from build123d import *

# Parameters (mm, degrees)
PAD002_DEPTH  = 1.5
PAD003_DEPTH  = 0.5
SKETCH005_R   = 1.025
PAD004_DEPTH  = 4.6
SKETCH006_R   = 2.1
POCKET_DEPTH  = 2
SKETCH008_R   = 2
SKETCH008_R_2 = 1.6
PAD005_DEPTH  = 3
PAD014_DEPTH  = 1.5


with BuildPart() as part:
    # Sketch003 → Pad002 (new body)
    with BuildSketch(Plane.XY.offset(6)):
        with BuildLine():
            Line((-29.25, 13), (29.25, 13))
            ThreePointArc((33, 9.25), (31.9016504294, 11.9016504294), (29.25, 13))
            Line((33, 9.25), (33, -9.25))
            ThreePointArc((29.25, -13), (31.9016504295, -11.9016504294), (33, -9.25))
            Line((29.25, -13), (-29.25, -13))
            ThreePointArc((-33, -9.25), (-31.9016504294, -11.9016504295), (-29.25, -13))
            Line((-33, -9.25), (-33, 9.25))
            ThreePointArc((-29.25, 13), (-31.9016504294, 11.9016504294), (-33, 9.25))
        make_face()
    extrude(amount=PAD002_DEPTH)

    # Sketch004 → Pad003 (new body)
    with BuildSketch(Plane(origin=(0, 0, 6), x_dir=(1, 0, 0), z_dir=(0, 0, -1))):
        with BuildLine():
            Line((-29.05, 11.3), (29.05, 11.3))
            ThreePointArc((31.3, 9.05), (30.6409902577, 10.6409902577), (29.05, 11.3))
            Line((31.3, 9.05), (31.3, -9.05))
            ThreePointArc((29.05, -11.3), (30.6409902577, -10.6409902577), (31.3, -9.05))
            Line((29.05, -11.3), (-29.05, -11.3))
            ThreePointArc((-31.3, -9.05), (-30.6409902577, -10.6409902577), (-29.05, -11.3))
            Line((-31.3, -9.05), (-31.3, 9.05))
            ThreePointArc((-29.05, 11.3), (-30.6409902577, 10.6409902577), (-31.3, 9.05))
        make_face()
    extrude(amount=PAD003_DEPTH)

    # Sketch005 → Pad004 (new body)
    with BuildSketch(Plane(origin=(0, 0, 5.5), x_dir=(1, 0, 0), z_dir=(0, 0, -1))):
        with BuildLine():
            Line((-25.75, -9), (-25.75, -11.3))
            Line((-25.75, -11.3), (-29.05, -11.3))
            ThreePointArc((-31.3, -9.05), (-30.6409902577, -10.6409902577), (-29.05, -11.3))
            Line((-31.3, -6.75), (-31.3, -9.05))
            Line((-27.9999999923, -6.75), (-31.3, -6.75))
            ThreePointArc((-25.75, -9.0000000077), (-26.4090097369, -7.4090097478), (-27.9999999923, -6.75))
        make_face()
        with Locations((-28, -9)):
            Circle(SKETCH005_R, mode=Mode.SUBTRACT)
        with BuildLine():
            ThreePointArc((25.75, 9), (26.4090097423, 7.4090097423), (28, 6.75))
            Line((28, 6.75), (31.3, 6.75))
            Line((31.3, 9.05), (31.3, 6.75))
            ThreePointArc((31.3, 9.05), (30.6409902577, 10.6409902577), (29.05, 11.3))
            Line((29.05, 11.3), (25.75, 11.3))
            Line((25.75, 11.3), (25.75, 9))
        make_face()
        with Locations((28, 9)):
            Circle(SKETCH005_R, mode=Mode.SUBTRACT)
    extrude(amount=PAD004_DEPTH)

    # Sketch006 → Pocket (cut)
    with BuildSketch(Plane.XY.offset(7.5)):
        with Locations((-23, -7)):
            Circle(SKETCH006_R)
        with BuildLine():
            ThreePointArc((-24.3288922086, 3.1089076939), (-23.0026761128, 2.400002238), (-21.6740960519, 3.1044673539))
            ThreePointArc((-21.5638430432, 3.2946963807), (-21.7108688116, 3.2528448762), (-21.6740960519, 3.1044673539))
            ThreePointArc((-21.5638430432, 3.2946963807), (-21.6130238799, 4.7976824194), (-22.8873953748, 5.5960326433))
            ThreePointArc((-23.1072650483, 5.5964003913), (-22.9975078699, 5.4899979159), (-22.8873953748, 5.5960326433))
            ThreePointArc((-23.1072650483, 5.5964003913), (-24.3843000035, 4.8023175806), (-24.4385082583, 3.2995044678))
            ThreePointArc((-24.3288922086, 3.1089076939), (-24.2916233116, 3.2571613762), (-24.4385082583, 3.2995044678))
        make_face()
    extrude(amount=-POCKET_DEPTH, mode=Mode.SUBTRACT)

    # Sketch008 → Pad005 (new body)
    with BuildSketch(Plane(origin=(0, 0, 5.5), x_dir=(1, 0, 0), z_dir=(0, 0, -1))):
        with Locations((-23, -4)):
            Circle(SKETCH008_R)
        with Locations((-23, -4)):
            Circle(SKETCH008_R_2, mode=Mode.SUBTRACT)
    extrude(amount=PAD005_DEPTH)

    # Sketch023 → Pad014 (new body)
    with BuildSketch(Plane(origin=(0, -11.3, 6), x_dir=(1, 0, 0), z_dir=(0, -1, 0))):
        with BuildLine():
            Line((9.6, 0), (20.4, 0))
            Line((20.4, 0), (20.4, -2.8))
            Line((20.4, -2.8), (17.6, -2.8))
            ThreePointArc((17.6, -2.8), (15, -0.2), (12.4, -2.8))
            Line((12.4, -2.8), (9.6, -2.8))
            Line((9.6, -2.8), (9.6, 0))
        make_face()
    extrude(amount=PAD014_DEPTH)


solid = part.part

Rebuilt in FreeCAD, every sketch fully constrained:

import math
import FreeCAD as App
import Part
import Sketcher
Q = App.Units.Quantity

doc = App.newDocument("Part")
body = doc.addObject("PartDesign::Body", "Body")

sketch1 = body.newObject("Sketcher::SketchObject", "Sketch")
sketch1.AttachmentSupport = (doc.getObject("XY_Plane"), [""])
sketch1.MapMode = "FlatFace"
sketch1.AttachmentOffset = App.Placement(App.Vector(0, 0, 6), App.Rotation())
sketch1.addGeometry(Part.LineSegment(App.Vector(29.25, 13, 0), App.Vector(-29.25, 13, 0)), False)
sketch1.addGeometry(Part.ArcOfCircle(Part.Circle(App.Vector(-29.25, 9.25, 0), App.Vector(0, 0, 1), 3.75), math.radians(90), math.radians(180)), False)
sketch1.addGeometry(Part.LineSegment(App.Vector(-33, 9.25, 0), App.Vector(-33, -9.25, 0)), False)
sketch1.addGeometry(Part.ArcOfCircle(Part.Circle(App.Vector(-29.25, -9.25, 0), App.Vector(0, 0, 1), 3.75), math.radians(180), math.radians(270)), False)
sketch1.addGeometry(Part.LineSegment(App.Vector(-29.25, -13, 0), App.Vector(29.25, -13, 0)), False)
sketch1.addGeometry(Part.ArcOfCircle(Part.Circle(App.Vector(29.25, -9.25, 0), App.Vector(0, 0, 1), 3.75), math.radians(-90), math.radians(0)), False)
sketch1.addGeometry(Part.LineSegment(App.Vector(33, -9.25, 0), App.Vector(33, 9.25, 0)), False)
sketch1.addGeometry(Part.ArcOfCircle(Part.Circle(App.Vector(29.25, 9.25, 0), App.Vector(0, 0, 1), 3.75), math.radians(0), math.radians(90)), False)
sketch1.addConstraint(Sketcher.Constraint("Tangent", 0, 2, 1, 1))
sketch1.addConstraint(Sketcher.Constraint("Tangent", 1, 2, 2, 1))
sketch1.addConstraint(Sketcher.Constraint("Tangent", 2, 2, 3, 1))
sketch1.addConstraint(Sketcher.Constraint("Tangent", 3, 2, 4, 1))
sketch1.addConstraint(Sketcher.Constraint("Tangent", 4, 2, 5, 1))
sketch1.addConstraint(Sketcher.Constraint("Tangent", 5, 2, 6, 1))
sketch1.addConstraint(Sketcher.Constraint("Tangent", 6, 2, 7, 1))
sketch1.addConstraint(Sketcher.Constraint("Tangent", 7, 2, 0, 1))
sketch1.addConstraint(Sketcher.Constraint("Horizontal", 0))
sketch1.addConstraint(Sketcher.Constraint("Vertical", 2))
sketch1.addConstraint(Sketcher.Constraint("Horizontal", 4))
sketch1.addConstraint(Sketcher.Constraint("Vertical", 6))
sketch1.addConstraint(Sketcher.Constraint("Equal", 1, 3))
sketch1.addConstraint(Sketcher.Constraint("Equal", 3, 5))
sketch1.addConstraint(Sketcher.Constraint("Equal", 5, 7))
sketch1.addConstraint(Sketcher.Constraint("Symmetric", 1, 3, 5, 3, -1, 1))
sketch1.addConstraint(Sketcher.Constraint("Radius", 1, Q("3.75 mm")))
sketch1.addConstraint(Sketcher.Constraint("DistanceX", 0, 2, 0, 1, Q("58.5 mm")))
sketch1.addConstraint(Sketcher.Constraint("DistanceY", 2, 2, 2, 1, Q("18.5 mm")))
pad1 = body.newObject("PartDesign::Pad", "Pad")
pad1.Profile = sketch1
pad1.Length = 1.5

sketch2 = body.newObject("Sketcher::SketchObject", "Sketch001")
sketch2.AttachmentSupport = (doc.getObject("XY_Plane"), [""])
sketch2.MapMode = "FlatFace"
sketch2.AttachmentOffset = App.Placement(App.Vector(0, 0, 6), App.Rotation())
sketch2.addGeometry(Part.LineSegment(App.Vector(29.05, -11.3, 0), App.Vector(-29.05, -11.3, 0)), False)
sketch2.addGeometry(Part.ArcOfCircle(Part.Circle(App.Vector(-29.05, -9.05, 0), App.Vector(0, 0, 1), 2.25), math.radians(180), math.radians(270)), False)
sketch2.addGeometry(Part.LineSegment(App.Vector(-31.3, -9.05, 0), App.Vector(-31.3, 9.05, 0)), False)
sketch2.addGeometry(Part.ArcOfCircle(Part.Circle(App.Vector(-29.05, 9.05, 0), App.Vector(0, 0, 1), 2.25), math.radians(90), math.radians(180)), False)
sketch2.addGeometry(Part.LineSegment(App.Vector(-29.05, 11.3, 0), App.Vector(29.05, 11.3, 0)), False)
sketch2.addGeometry(Part.ArcOfCircle(Part.Circle(App.Vector(29.05, 9.05, 0), App.Vector(0, 0, 1), 2.25), math.radians(0), math.radians(90)), False)
sketch2.addGeometry(Part.LineSegment(App.Vector(31.3, 9.05, 0), App.Vector(31.3, -9.05, 0)), False)
sketch2.addGeometry(Part.ArcOfCircle(Part.Circle(App.Vector(29.05, -9.05, 0), App.Vector(0, 0, 1), 2.25), math.radians(-90), math.radians(0)), False)
sketch2.addConstraint(Sketcher.Constraint("Tangent", 0, 2, 1, 2))
sketch2.addConstraint(Sketcher.Constraint("Tangent", 1, 1, 2, 1))
sketch2.addConstraint(Sketcher.Constraint("Tangent", 2, 2, 3, 2))
sketch2.addConstraint(Sketcher.Constraint("Tangent", 3, 1, 4, 1))
sketch2.addConstraint(Sketcher.Constraint("Tangent", 4, 2, 5, 2))
sketch2.addConstraint(Sketcher.Constraint("Tangent", 5, 1, 6, 1))
sketch2.addConstraint(Sketcher.Constraint("Tangent", 6, 2, 7, 2))
sketch2.addConstraint(Sketcher.Constraint("Tangent", 7, 1, 0, 1))
sketch2.addConstraint(Sketcher.Constraint("Horizontal", 0))
sketch2.addConstraint(Sketcher.Constraint("Vertical", 2))
sketch2.addConstraint(Sketcher.Constraint("Horizontal", 4))
sketch2.addConstraint(Sketcher.Constraint("Vertical", 6))
sketch2.addConstraint(Sketcher.Constraint("Equal", 1, 3))
sketch2.addConstraint(Sketcher.Constraint("Equal", 3, 5))
sketch2.addConstraint(Sketcher.Constraint("Equal", 5, 7))
sketch2.addConstraint(Sketcher.Constraint("Symmetric", 1, 3, 5, 3, -1, 1))
sketch2.addConstraint(Sketcher.Constraint("Radius", 1, Q("2.25 mm")))
sketch2.addConstraint(Sketcher.Constraint("DistanceX", 0, 2, 0, 1, Q("58.1 mm")))
sketch2.addConstraint(Sketcher.Constraint("DistanceY", 2, 1, 2, 2, Q("18.1 mm")))
pad2 = body.newObject("PartDesign::Pad", "Pad001")
pad2.Profile = sketch2
pad2.Length = 0.5
pad2.Reversed = True

sketch3 = body.newObject("Sketcher::SketchObject", "Sketch002")
sketch3.AttachmentSupport = (doc.getObject("XY_Plane"), [""])
sketch3.MapMode = "FlatFace"
sketch3.AttachmentOffset = App.Placement(App.Vector(0, 0, 5.5), App.Rotation())
sketch3.addGeometry(Part.LineSegment(App.Vector(-25.75, 11.3, 0), App.Vector(-25.75, 9, 0)), False)
sketch3.addGeometry(Part.ArcOfCircle(Part.Circle(App.Vector(-28, 9, 0), App.Vector(0, 0, 1), 2.25), math.radians(-90), math.radians(0)), False)
sketch3.addGeometry(Part.LineSegment(App.Vector(-28, 6.75, 0), App.Vector(-31.3, 6.75, 0)), False)
sketch3.addGeometry(Part.LineSegment(App.Vector(-31.3, 6.75, 0), App.Vector(-31.3, 9.05, 0)), False)
sketch3.addGeometry(Part.ArcOfCircle(Part.Circle(App.Vector(-29.05, 9.05, 0), App.Vector(0, 0, 1), 2.25), math.radians(90), math.radians(180)), False)
sketch3.addGeometry(Part.LineSegment(App.Vector(-29.05, 11.3, 0), App.Vector(-25.75, 11.3, 0)), False)
sketch3.addGeometry(Part.Circle(App.Vector(-28, 9, 0), App.Vector(0, 0, 1), 1.025), False)
sketch3.addGeometry(Part.ArcOfCircle(Part.Circle(App.Vector(28, -9, 0), App.Vector(0, 0, 1), 2.25), math.radians(90), math.radians(180)), False)
sketch3.addGeometry(Part.LineSegment(App.Vector(28, -6.75, 0), App.Vector(31.3, -6.75, 0)), False)
sketch3.addGeometry(Part.LineSegment(App.Vector(31.3, -6.75, 0), App.Vector(31.3, -9.05, 0)), False)
sketch3.addGeometry(Part.ArcOfCircle(Part.Circle(App.Vector(29.05, -9.05, 0), App.Vector(0, 0, 1), 2.25), math.radians(-90), math.radians(0)), False)
sketch3.addGeometry(Part.LineSegment(App.Vector(29.05, -11.3, 0), App.Vector(25.75, -11.3, 0)), False)
sketch3.addGeometry(Part.LineSegment(App.Vector(25.75, -11.3, 0), App.Vector(25.75, -9, 0)), False)
sketch3.addGeometry(Part.Circle(App.Vector(28, -9, 0), App.Vector(0, 0, 1), 1.025), False)
sketch3.addConstraint(Sketcher.Constraint("Tangent", 0, 2, 1, 2))
sketch3.addConstraint(Sketcher.Constraint("Tangent", 1, 1, 2, 1))
sketch3.addConstraint(Sketcher.Constraint("Coincident", 2, 2, 3, 1))
sketch3.addConstraint(Sketcher.Constraint("Tangent", 3, 2, 4, 2))
sketch3.addConstraint(Sketcher.Constraint("Tangent", 4, 1, 5, 1))
sketch3.addConstraint(Sketcher.Constraint("Coincident", 5, 2, 0, 1))
sketch3.addConstraint(Sketcher.Constraint("Tangent", 7, 1, 8, 1))
sketch3.addConstraint(Sketcher.Constraint("Coincident", 8, 2, 9, 1))
sketch3.addConstraint(Sketcher.Constraint("Tangent", 9, 2, 10, 2))
sketch3.addConstraint(Sketcher.Constraint("Tangent", 10, 1, 11, 1))
sketch3.addConstraint(Sketcher.Constraint("Coincident", 11, 2, 12, 1))
sketch3.addConstraint(Sketcher.Constraint("Tangent", 12, 2, 7, 2))
sketch3.addConstraint(Sketcher.Constraint("Vertical", 0))
sketch3.addConstraint(Sketcher.Constraint("Horizontal", 2))
sketch3.addConstraint(Sketcher.Constraint("Vertical", 3))
sketch3.addConstraint(Sketcher.Constraint("Horizontal", 5))
sketch3.addConstraint(Sketcher.Constraint("Horizontal", 8))
sketch3.addConstraint(Sketcher.Constraint("Vertical", 9))
sketch3.addConstraint(Sketcher.Constraint("Horizontal", 11))
sketch3.addConstraint(Sketcher.Constraint("Vertical", 12))
sketch3.addConstraint(Sketcher.Constraint("Coincident", 6, 3, 1, 3))
sketch3.addConstraint(Sketcher.Constraint("Coincident", 13, 3, 7, 3))
sketch3.addConstraint(Sketcher.Constraint("Equal", 1, 4))
sketch3.addConstraint(Sketcher.Constraint("Equal", 4, 7))
sketch3.addConstraint(Sketcher.Constraint("Equal", 7, 10))
sketch3.addConstraint(Sketcher.Constraint("Equal", 6, 13))
sketch3.addConstraint(Sketcher.Constraint("Symmetric", 1, 3, 7, 3, -1, 1))
sketch3.addConstraint(Sketcher.Constraint("Symmetric", 4, 3, 10, 3, -1, 1))
sketch3.addConstraint(Sketcher.Constraint("Diameter", 6, Q("2.05 mm")))
sketch3.addConstraint(Sketcher.Constraint("Radius", 1, Q("2.25 mm")))
sketch3.addConstraint(Sketcher.Constraint("DistanceX", 2, 2, 2, 1, Q("3.3 mm")))
sketch3.addConstraint(Sketcher.Constraint("DistanceY", 0, 2, 0, 1, Q("2.3 mm")))
sketch3.addConstraint(Sketcher.Constraint("DistanceX", 1, 3, -1, 1, Q("28 mm")))
sketch3.addConstraint(Sketcher.Constraint("DistanceY", -1, 1, 1, 3, Q("9 mm")))
pad3 = body.newObject("PartDesign::Pad", "Pad002")
pad3.Profile = sketch3
pad3.Length = 4.6
pad3.Reversed = True

sketch4 = body.newObject("Sketcher::SketchObject", "Sketch003")
sketch4.AttachmentSupport = (doc.getObject("XY_Plane"), [""])
sketch4.MapMode = "FlatFace"
sketch4.AttachmentOffset = App.Placement(App.Vector(0, 0, 7.5), App.Rotation())
sketch4.addGeometry(Part.Circle(App.Vector(-23, -7, 0), App.Vector(0, 0, 1), 2.1), False)
sketch4.addGeometry(Part.ArcOfCircle(Part.Circle(App.Vector(-23, 4, 0), App.Vector(0, 0, 1), 1.6), math.radians(-146.156063), math.radians(-34.0356)), False)
sketch4.addGeometry(Part.ArcOfCircle(Part.Circle(App.Vector(-21.615698, 3.197686, 0), App.Vector(0, 0, 1), 0.11), math.radians(61.874192), math.radians(237.934331)), False)
sketch4.addGeometry(Part.ArcOfCircle(Part.Circle(App.Vector(-23, 4, 0), App.Vector(0, 0, 1), 1.6), math.radians(-26.155878), math.radians(85.964308)), False)
sketch4.addGeometry(Part.ArcOfCircle(Part.Circle(App.Vector(-22.997324, 5.599998, 0), App.Vector(0, 0, 1), 0.11), math.radians(-178.125901), math.radians(-2.065762)), False)
sketch4.addGeometry(Part.ArcOfCircle(Part.Circle(App.Vector(-23, 4, 0), App.Vector(0, 0, 1), 1.6), math.radians(93.84403), math.radians(205.964215)), False)
sketch4.addGeometry(Part.ArcOfCircle(Part.Circle(App.Vector(-24.386978, 3.202321, 0), App.Vector(0, 0, 1), 0.11), math.radians(-58.125993), math.radians(117.934145)), False)
sketch4.addConstraint(Sketcher.Constraint("Coincident", 1, 2, 2, 2))
sketch4.addConstraint(Sketcher.Constraint("Coincident", 2, 1, 3, 1))
sketch4.addConstraint(Sketcher.Constraint("Coincident", 3, 2, 4, 2))
sketch4.addConstraint(Sketcher.Constraint("Coincident", 4, 1, 5, 1))
sketch4.addConstraint(Sketcher.Constraint("Coincident", 5, 2, 6, 2))
sketch4.addConstraint(Sketcher.Constraint("Coincident", 6, 1, 1, 1))
sketch4.addConstraint(Sketcher.Constraint("Coincident", 3, 3, 1, 3))
sketch4.addConstraint(Sketcher.Constraint("Coincident", 5, 3, 1, 3))
sketch4.addConstraint(Sketcher.Constraint("Equal", 1, 3))
sketch4.addConstraint(Sketcher.Constraint("Equal", 2, 4))
sketch4.addConstraint(Sketcher.Constraint("Equal", 3, 5))
sketch4.addConstraint(Sketcher.Constraint("Equal", 4, 6))
sketch4.addConstraint(Sketcher.Constraint("Vertical", 0, 3, 1, 3))
sketch4.addConstraint(Sketcher.Constraint("Diameter", 0, Q("4.2 mm")))
sketch4.addConstraint(Sketcher.Constraint("Radius", 1, Q("1.6 mm")))
sketch4.addConstraint(Sketcher.Constraint("Radius", 2, Q("0.11 mm")))
sketch4.addConstraint(Sketcher.Constraint("DistanceX", 0, 3, -1, 1, Q("23 mm")))
sketch4.addConstraint(Sketcher.Constraint("DistanceY", 0, 3, -1, 1, Q("7 mm")))
sketch4.addConstraint(Sketcher.Constraint("DistanceY", -1, 1, 1, 3, Q("4 mm")))
sketch4.addConstraint(Sketcher.Constraint("DistanceX", 2, 3, -1, 1, Q("21.615698 mm")))
sketch4.addConstraint(Sketcher.Constraint("DistanceY", -1, 1, 4, 1, Q("5.5964 mm")))
sketch4.addConstraint(Sketcher.Constraint("DistanceX", 6, 3, -1, 1, Q("24.386978 mm")))
sketch4.addConstraint(Sketcher.Constraint("DistanceY", -1, 1, 6, 3, Q("3.202321 mm")))
sketch4.addConstraint(Sketcher.Constraint("DistanceY", 2, 3, 4, 3, Q("2.402312 mm")))
sketch4.addConstraint(Sketcher.Constraint("DistanceY", 1, 2, 2, 3, Q("0.093218 mm")))
pocket1 = body.newObject("PartDesign::Pocket", "Pocket")
pocket1.Profile = sketch4
pocket1.Length = 2

sketch5 = body.newObject("Sketcher::SketchObject", "Sketch004")
sketch5.AttachmentSupport = (doc.getObject("XY_Plane"), [""])
sketch5.MapMode = "FlatFace"
sketch5.AttachmentOffset = App.Placement(App.Vector(0, 0, 5.5), App.Rotation())
sketch5.addGeometry(Part.Circle(App.Vector(-23, 4, 0), App.Vector(0, 0, 1), 2), False)
sketch5.addGeometry(Part.Circle(App.Vector(-23, 4, 0), App.Vector(0, 0, 1), 1.6), False)
sketch5.addConstraint(Sketcher.Constraint("Coincident", 1, 3, 0, 3))
sketch5.addConstraint(Sketcher.Constraint("Diameter", 0, Q("4 mm")))
sketch5.addConstraint(Sketcher.Constraint("Diameter", 1, Q("3.2 mm")))
sketch5.addConstraint(Sketcher.Constraint("DistanceX", 0, 3, -1, 1, Q("23 mm")))
sketch5.addConstraint(Sketcher.Constraint("DistanceY", -1, 1, 0, 3, Q("4 mm")))
pad4 = body.newObject("PartDesign::Pad", "Pad003")
pad4.Profile = sketch5
pad4.Length = 3
pad4.Reversed = True

sketch6 = body.newObject("Sketcher::SketchObject", "Sketch005")
sketch6.AttachmentSupport = (doc.getObject("XZ_Plane"), [""])
sketch6.MapMode = "FlatFace"
sketch6.AttachmentOffset = App.Placement(App.Vector(0, 0, 11.3), App.Rotation())
sketch6.addGeometry(Part.LineSegment(App.Vector(20.4, 6, 0), App.Vector(9.6, 6, 0)), False)
sketch6.addGeometry(Part.LineSegment(App.Vector(9.6, 6, 0), App.Vector(9.6, 3.2, 0)), False)
sketch6.addGeometry(Part.LineSegment(App.Vector(9.6, 3.2, 0), App.Vector(12.4, 3.2, 0)), False)
sketch6.addGeometry(Part.ArcOfCircle(Part.Circle(App.Vector(15, 3.2, 0), App.Vector(0, 0, 1), 2.6), math.radians(0), math.radians(180)), False)
sketch6.addGeometry(Part.LineSegment(App.Vector(17.6, 3.2, 0), App.Vector(20.4, 3.2, 0)), False)
sketch6.addGeometry(Part.LineSegment(App.Vector(20.4, 3.2, 0), App.Vector(20.4, 6, 0)), False)
sketch6.addConstraint(Sketcher.Constraint("Coincident", 0, 2, 1, 1))
sketch6.addConstraint(Sketcher.Constraint("Coincident", 1, 2, 2, 1))
sketch6.addConstraint(Sketcher.Constraint("Coincident", 2, 2, 3, 2))
sketch6.addConstraint(Sketcher.Constraint("Coincident", 3, 1, 4, 1))
sketch6.addConstraint(Sketcher.Constraint("Coincident", 4, 2, 5, 1))
sketch6.addConstraint(Sketcher.Constraint("Coincident", 5, 2, 0, 1))
sketch6.addConstraint(Sketcher.Constraint("Horizontal", 0))
sketch6.addConstraint(Sketcher.Constraint("Vertical", 1))
sketch6.addConstraint(Sketcher.Constraint("Horizontal", 2))
sketch6.addConstraint(Sketcher.Constraint("Horizontal", 4))
sketch6.addConstraint(Sketcher.Constraint("Vertical", 5))
sketch6.addConstraint(Sketcher.Constraint("Horizontal", 3, 3, 1, 2))
sketch6.addConstraint(Sketcher.Constraint("Horizontal", 2, 2, 3, 1))
sketch6.addConstraint(Sketcher.Constraint("Equal", 2, 4))
sketch6.addConstraint(Sketcher.Constraint("Equal", 4, 1))
sketch6.addConstraint(Sketcher.Constraint("Radius", 3, Q("2.6 mm")))
sketch6.addConstraint(Sketcher.Constraint("DistanceX", 0, 2, 0, 1, Q("10.8 mm")))
sketch6.addConstraint(Sketcher.Constraint("DistanceX", -1, 1, 3, 3, Q("15 mm")))
sketch6.addConstraint(Sketcher.Constraint("DistanceY", -1, 1, 0, 2, Q("6 mm")))
pad5 = body.newObject("PartDesign::Pad", "Pad004")
pad5.Profile = sketch6
pad5.Length = 1.5

doc.recompute()
